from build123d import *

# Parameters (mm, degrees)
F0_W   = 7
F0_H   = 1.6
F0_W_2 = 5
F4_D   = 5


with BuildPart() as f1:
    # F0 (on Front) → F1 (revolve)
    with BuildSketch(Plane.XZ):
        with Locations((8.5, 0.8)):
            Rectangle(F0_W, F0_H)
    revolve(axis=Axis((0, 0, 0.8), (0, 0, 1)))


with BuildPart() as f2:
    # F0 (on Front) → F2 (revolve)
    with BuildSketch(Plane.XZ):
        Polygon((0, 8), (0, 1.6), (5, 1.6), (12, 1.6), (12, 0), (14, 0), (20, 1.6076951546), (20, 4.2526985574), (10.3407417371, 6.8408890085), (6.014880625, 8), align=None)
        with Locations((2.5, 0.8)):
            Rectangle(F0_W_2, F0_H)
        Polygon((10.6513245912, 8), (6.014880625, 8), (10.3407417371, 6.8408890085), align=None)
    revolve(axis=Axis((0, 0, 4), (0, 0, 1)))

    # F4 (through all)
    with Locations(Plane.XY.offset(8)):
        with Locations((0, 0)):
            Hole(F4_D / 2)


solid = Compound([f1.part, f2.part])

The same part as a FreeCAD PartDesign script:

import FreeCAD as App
import Part
import Sketcher
from FreeCAD import Vector
Q = App.Units.Quantity


def add_polygon(sketch, points):
    """Adds a closed chain of lines whose ends are joined by coincident constraints."""
    first, n = sketch.GeometryCount, len(points)
    for a, b in zip(points, points[1:] + points[:1]):
        sketch.addGeometry(Part.LineSegment(App.Vector(*a, 0), App.Vector(*b, 0)), False)
    for i in range(n):
        sketch.addConstraint(Sketcher.Constraint("Coincident", first + i, 2, first + (i + 1) % n, 1))

doc = App.newDocument("Part")
body = doc.addObject("PartDesign::Body", "Body")

sketch1 = doc.addObject("Sketcher::SketchObject", "Sketch")
body.addObject(sketch1)
sketch1.AttachmentSupport = (doc.XZ_Plane, [""])
sketch1.MapMode = "FlatFace"
add_polygon(sketch1, [(5, 1.6), (5, 0), (12, 0), (12, 1.6)])
sketch1.addConstraint([
    Sketcher.Constraint("Vertical", 0),
    Sketcher.Constraint("Horizontal", 1),
    Sketcher.Constraint("Vertical", 2),
    Sketcher.Constraint("Horizontal", 3),
    Sketcher.Constraint("PointOnObject", 0, 2, -1),
    Sketcher.Constraint("DistanceX", 1, 1, 1, 2, Q("7 mm")),
    Sketcher.Constraint("DistanceY", 0, 2, 0, 1, Q("1.6 mm")),
    Sketcher.Constraint("DistanceX", -1, 1, 0, 2, Q("5 mm")),
])
revolution = doc.addObject("PartDesign::Revolution", "Revolution")
body.addObject(revolution)
revolution.Profile = sketch1
revolution.ReferenceAxis = (sketch1, ["V_Axis"])
revolution.Angle = 360
body2 = doc.addObject("PartDesign::Body", "Body001")

sketch2 = doc.addObject("Sketcher::SketchObject", "Sketch001")
body2.addObject(sketch2)
sketch2.AttachmentSupport = (doc.getObject("XZ_Plane001"), [""])
sketch2.MapMode = "FlatFace"
add_polygon(sketch2, [(0, 8), (0, 0), (5, 0), (5, 1.6), (12, 1.6), (12, 0), (14, 0), (20, 1.6), (20, 4.3), (10.3, 6.8), (10.7, 8)])
sketch2.addConstraint([
    Sketcher.Constraint("Vertical", 0),
    Sketcher.Constraint("Horizontal", 1),
    Sketcher.Constraint("Vertical", 2),
    Sketcher.Constraint("Horizontal", 3),
    Sketcher.Constraint("Vertical", 4),
    Sketcher.Constraint("Horizontal", 5),
    Sketcher.Constraint("Vertical", 7),
    Sketcher.Constraint("Horizontal", 10),
    Sketcher.Constraint("Coincident", 0, 2, -1, 1),
    Sketcher.Constraint("PointOnObject", 4, 2, -1),
    Sketcher.Constraint("Perpendicular", 8, 9),
    Sketcher.Constraint("DistanceX", 1, 1, 1, 2, Q("5 mm")),
    Sketcher.Constraint("DistanceX", 3, 1, 3, 2, Q("7 mm")),
    Sketcher.Constraint("DistanceX", 5, 1, 5, 2, Q("2 mm")),
    Sketcher.Constraint("DistanceY", 0, 2, 0, 1, Q("8 mm")),
    Sketcher.Constraint("Angle", 6, Q("15 deg")),
    Sketcher.Constraint("Angle", 8, Q("165 deg")),
    Sketcher.Constraint("Distance", 8, Q("10 mm")),
    Sketcher.Constraint("DistanceY", 2, 1, 2, 2, Q("1.6 mm")),
    Sketcher.Constraint("DistanceX", -1, 1, 6, 2, Q("20 mm")),
    Sketcher.Constraint("Distance", 9, Q("1.2 mm")),
])
revolution2 = doc.addObject("PartDesign::Revolution", "Revolution001")
body2.addObject(revolution2)
revolution2.Profile = sketch2
revolution2.ReferenceAxis = (sketch2, ["V_Axis"])
revolution2.Angle = 360

sketch3 = doc.addObject("Sketcher::SketchObject", "Sketch002")
body2.addObject(sketch3)
sketch3.AttachmentSupport = (doc.getObject("XY_Plane001"), [""])
sketch3.MapMode = "FlatFace"
sketch3.AttachmentOffset = App.Placement(Vector(0, 0, 8), App.Rotation())
sketch3.addGeometry(Part.Circle(Vector(0, 0, 0), Vector(0, 0, 1), 2.5), False)
sketch3.addConstraint([
    Sketcher.Constraint("Coincident", 0, 3, -1, 1),
    Sketcher.Constraint("Diameter", 0, Q("5 mm")),
])
doc.recompute()
hole = doc.addObject("PartDesign::Hole", "Hole")
body2.addObject(hole)
hole.Profile = sketch3
hole.ThreadType = "None"
hole.Diameter = 5
hole.DepthType = "ThroughAll"

doc.recompute()
